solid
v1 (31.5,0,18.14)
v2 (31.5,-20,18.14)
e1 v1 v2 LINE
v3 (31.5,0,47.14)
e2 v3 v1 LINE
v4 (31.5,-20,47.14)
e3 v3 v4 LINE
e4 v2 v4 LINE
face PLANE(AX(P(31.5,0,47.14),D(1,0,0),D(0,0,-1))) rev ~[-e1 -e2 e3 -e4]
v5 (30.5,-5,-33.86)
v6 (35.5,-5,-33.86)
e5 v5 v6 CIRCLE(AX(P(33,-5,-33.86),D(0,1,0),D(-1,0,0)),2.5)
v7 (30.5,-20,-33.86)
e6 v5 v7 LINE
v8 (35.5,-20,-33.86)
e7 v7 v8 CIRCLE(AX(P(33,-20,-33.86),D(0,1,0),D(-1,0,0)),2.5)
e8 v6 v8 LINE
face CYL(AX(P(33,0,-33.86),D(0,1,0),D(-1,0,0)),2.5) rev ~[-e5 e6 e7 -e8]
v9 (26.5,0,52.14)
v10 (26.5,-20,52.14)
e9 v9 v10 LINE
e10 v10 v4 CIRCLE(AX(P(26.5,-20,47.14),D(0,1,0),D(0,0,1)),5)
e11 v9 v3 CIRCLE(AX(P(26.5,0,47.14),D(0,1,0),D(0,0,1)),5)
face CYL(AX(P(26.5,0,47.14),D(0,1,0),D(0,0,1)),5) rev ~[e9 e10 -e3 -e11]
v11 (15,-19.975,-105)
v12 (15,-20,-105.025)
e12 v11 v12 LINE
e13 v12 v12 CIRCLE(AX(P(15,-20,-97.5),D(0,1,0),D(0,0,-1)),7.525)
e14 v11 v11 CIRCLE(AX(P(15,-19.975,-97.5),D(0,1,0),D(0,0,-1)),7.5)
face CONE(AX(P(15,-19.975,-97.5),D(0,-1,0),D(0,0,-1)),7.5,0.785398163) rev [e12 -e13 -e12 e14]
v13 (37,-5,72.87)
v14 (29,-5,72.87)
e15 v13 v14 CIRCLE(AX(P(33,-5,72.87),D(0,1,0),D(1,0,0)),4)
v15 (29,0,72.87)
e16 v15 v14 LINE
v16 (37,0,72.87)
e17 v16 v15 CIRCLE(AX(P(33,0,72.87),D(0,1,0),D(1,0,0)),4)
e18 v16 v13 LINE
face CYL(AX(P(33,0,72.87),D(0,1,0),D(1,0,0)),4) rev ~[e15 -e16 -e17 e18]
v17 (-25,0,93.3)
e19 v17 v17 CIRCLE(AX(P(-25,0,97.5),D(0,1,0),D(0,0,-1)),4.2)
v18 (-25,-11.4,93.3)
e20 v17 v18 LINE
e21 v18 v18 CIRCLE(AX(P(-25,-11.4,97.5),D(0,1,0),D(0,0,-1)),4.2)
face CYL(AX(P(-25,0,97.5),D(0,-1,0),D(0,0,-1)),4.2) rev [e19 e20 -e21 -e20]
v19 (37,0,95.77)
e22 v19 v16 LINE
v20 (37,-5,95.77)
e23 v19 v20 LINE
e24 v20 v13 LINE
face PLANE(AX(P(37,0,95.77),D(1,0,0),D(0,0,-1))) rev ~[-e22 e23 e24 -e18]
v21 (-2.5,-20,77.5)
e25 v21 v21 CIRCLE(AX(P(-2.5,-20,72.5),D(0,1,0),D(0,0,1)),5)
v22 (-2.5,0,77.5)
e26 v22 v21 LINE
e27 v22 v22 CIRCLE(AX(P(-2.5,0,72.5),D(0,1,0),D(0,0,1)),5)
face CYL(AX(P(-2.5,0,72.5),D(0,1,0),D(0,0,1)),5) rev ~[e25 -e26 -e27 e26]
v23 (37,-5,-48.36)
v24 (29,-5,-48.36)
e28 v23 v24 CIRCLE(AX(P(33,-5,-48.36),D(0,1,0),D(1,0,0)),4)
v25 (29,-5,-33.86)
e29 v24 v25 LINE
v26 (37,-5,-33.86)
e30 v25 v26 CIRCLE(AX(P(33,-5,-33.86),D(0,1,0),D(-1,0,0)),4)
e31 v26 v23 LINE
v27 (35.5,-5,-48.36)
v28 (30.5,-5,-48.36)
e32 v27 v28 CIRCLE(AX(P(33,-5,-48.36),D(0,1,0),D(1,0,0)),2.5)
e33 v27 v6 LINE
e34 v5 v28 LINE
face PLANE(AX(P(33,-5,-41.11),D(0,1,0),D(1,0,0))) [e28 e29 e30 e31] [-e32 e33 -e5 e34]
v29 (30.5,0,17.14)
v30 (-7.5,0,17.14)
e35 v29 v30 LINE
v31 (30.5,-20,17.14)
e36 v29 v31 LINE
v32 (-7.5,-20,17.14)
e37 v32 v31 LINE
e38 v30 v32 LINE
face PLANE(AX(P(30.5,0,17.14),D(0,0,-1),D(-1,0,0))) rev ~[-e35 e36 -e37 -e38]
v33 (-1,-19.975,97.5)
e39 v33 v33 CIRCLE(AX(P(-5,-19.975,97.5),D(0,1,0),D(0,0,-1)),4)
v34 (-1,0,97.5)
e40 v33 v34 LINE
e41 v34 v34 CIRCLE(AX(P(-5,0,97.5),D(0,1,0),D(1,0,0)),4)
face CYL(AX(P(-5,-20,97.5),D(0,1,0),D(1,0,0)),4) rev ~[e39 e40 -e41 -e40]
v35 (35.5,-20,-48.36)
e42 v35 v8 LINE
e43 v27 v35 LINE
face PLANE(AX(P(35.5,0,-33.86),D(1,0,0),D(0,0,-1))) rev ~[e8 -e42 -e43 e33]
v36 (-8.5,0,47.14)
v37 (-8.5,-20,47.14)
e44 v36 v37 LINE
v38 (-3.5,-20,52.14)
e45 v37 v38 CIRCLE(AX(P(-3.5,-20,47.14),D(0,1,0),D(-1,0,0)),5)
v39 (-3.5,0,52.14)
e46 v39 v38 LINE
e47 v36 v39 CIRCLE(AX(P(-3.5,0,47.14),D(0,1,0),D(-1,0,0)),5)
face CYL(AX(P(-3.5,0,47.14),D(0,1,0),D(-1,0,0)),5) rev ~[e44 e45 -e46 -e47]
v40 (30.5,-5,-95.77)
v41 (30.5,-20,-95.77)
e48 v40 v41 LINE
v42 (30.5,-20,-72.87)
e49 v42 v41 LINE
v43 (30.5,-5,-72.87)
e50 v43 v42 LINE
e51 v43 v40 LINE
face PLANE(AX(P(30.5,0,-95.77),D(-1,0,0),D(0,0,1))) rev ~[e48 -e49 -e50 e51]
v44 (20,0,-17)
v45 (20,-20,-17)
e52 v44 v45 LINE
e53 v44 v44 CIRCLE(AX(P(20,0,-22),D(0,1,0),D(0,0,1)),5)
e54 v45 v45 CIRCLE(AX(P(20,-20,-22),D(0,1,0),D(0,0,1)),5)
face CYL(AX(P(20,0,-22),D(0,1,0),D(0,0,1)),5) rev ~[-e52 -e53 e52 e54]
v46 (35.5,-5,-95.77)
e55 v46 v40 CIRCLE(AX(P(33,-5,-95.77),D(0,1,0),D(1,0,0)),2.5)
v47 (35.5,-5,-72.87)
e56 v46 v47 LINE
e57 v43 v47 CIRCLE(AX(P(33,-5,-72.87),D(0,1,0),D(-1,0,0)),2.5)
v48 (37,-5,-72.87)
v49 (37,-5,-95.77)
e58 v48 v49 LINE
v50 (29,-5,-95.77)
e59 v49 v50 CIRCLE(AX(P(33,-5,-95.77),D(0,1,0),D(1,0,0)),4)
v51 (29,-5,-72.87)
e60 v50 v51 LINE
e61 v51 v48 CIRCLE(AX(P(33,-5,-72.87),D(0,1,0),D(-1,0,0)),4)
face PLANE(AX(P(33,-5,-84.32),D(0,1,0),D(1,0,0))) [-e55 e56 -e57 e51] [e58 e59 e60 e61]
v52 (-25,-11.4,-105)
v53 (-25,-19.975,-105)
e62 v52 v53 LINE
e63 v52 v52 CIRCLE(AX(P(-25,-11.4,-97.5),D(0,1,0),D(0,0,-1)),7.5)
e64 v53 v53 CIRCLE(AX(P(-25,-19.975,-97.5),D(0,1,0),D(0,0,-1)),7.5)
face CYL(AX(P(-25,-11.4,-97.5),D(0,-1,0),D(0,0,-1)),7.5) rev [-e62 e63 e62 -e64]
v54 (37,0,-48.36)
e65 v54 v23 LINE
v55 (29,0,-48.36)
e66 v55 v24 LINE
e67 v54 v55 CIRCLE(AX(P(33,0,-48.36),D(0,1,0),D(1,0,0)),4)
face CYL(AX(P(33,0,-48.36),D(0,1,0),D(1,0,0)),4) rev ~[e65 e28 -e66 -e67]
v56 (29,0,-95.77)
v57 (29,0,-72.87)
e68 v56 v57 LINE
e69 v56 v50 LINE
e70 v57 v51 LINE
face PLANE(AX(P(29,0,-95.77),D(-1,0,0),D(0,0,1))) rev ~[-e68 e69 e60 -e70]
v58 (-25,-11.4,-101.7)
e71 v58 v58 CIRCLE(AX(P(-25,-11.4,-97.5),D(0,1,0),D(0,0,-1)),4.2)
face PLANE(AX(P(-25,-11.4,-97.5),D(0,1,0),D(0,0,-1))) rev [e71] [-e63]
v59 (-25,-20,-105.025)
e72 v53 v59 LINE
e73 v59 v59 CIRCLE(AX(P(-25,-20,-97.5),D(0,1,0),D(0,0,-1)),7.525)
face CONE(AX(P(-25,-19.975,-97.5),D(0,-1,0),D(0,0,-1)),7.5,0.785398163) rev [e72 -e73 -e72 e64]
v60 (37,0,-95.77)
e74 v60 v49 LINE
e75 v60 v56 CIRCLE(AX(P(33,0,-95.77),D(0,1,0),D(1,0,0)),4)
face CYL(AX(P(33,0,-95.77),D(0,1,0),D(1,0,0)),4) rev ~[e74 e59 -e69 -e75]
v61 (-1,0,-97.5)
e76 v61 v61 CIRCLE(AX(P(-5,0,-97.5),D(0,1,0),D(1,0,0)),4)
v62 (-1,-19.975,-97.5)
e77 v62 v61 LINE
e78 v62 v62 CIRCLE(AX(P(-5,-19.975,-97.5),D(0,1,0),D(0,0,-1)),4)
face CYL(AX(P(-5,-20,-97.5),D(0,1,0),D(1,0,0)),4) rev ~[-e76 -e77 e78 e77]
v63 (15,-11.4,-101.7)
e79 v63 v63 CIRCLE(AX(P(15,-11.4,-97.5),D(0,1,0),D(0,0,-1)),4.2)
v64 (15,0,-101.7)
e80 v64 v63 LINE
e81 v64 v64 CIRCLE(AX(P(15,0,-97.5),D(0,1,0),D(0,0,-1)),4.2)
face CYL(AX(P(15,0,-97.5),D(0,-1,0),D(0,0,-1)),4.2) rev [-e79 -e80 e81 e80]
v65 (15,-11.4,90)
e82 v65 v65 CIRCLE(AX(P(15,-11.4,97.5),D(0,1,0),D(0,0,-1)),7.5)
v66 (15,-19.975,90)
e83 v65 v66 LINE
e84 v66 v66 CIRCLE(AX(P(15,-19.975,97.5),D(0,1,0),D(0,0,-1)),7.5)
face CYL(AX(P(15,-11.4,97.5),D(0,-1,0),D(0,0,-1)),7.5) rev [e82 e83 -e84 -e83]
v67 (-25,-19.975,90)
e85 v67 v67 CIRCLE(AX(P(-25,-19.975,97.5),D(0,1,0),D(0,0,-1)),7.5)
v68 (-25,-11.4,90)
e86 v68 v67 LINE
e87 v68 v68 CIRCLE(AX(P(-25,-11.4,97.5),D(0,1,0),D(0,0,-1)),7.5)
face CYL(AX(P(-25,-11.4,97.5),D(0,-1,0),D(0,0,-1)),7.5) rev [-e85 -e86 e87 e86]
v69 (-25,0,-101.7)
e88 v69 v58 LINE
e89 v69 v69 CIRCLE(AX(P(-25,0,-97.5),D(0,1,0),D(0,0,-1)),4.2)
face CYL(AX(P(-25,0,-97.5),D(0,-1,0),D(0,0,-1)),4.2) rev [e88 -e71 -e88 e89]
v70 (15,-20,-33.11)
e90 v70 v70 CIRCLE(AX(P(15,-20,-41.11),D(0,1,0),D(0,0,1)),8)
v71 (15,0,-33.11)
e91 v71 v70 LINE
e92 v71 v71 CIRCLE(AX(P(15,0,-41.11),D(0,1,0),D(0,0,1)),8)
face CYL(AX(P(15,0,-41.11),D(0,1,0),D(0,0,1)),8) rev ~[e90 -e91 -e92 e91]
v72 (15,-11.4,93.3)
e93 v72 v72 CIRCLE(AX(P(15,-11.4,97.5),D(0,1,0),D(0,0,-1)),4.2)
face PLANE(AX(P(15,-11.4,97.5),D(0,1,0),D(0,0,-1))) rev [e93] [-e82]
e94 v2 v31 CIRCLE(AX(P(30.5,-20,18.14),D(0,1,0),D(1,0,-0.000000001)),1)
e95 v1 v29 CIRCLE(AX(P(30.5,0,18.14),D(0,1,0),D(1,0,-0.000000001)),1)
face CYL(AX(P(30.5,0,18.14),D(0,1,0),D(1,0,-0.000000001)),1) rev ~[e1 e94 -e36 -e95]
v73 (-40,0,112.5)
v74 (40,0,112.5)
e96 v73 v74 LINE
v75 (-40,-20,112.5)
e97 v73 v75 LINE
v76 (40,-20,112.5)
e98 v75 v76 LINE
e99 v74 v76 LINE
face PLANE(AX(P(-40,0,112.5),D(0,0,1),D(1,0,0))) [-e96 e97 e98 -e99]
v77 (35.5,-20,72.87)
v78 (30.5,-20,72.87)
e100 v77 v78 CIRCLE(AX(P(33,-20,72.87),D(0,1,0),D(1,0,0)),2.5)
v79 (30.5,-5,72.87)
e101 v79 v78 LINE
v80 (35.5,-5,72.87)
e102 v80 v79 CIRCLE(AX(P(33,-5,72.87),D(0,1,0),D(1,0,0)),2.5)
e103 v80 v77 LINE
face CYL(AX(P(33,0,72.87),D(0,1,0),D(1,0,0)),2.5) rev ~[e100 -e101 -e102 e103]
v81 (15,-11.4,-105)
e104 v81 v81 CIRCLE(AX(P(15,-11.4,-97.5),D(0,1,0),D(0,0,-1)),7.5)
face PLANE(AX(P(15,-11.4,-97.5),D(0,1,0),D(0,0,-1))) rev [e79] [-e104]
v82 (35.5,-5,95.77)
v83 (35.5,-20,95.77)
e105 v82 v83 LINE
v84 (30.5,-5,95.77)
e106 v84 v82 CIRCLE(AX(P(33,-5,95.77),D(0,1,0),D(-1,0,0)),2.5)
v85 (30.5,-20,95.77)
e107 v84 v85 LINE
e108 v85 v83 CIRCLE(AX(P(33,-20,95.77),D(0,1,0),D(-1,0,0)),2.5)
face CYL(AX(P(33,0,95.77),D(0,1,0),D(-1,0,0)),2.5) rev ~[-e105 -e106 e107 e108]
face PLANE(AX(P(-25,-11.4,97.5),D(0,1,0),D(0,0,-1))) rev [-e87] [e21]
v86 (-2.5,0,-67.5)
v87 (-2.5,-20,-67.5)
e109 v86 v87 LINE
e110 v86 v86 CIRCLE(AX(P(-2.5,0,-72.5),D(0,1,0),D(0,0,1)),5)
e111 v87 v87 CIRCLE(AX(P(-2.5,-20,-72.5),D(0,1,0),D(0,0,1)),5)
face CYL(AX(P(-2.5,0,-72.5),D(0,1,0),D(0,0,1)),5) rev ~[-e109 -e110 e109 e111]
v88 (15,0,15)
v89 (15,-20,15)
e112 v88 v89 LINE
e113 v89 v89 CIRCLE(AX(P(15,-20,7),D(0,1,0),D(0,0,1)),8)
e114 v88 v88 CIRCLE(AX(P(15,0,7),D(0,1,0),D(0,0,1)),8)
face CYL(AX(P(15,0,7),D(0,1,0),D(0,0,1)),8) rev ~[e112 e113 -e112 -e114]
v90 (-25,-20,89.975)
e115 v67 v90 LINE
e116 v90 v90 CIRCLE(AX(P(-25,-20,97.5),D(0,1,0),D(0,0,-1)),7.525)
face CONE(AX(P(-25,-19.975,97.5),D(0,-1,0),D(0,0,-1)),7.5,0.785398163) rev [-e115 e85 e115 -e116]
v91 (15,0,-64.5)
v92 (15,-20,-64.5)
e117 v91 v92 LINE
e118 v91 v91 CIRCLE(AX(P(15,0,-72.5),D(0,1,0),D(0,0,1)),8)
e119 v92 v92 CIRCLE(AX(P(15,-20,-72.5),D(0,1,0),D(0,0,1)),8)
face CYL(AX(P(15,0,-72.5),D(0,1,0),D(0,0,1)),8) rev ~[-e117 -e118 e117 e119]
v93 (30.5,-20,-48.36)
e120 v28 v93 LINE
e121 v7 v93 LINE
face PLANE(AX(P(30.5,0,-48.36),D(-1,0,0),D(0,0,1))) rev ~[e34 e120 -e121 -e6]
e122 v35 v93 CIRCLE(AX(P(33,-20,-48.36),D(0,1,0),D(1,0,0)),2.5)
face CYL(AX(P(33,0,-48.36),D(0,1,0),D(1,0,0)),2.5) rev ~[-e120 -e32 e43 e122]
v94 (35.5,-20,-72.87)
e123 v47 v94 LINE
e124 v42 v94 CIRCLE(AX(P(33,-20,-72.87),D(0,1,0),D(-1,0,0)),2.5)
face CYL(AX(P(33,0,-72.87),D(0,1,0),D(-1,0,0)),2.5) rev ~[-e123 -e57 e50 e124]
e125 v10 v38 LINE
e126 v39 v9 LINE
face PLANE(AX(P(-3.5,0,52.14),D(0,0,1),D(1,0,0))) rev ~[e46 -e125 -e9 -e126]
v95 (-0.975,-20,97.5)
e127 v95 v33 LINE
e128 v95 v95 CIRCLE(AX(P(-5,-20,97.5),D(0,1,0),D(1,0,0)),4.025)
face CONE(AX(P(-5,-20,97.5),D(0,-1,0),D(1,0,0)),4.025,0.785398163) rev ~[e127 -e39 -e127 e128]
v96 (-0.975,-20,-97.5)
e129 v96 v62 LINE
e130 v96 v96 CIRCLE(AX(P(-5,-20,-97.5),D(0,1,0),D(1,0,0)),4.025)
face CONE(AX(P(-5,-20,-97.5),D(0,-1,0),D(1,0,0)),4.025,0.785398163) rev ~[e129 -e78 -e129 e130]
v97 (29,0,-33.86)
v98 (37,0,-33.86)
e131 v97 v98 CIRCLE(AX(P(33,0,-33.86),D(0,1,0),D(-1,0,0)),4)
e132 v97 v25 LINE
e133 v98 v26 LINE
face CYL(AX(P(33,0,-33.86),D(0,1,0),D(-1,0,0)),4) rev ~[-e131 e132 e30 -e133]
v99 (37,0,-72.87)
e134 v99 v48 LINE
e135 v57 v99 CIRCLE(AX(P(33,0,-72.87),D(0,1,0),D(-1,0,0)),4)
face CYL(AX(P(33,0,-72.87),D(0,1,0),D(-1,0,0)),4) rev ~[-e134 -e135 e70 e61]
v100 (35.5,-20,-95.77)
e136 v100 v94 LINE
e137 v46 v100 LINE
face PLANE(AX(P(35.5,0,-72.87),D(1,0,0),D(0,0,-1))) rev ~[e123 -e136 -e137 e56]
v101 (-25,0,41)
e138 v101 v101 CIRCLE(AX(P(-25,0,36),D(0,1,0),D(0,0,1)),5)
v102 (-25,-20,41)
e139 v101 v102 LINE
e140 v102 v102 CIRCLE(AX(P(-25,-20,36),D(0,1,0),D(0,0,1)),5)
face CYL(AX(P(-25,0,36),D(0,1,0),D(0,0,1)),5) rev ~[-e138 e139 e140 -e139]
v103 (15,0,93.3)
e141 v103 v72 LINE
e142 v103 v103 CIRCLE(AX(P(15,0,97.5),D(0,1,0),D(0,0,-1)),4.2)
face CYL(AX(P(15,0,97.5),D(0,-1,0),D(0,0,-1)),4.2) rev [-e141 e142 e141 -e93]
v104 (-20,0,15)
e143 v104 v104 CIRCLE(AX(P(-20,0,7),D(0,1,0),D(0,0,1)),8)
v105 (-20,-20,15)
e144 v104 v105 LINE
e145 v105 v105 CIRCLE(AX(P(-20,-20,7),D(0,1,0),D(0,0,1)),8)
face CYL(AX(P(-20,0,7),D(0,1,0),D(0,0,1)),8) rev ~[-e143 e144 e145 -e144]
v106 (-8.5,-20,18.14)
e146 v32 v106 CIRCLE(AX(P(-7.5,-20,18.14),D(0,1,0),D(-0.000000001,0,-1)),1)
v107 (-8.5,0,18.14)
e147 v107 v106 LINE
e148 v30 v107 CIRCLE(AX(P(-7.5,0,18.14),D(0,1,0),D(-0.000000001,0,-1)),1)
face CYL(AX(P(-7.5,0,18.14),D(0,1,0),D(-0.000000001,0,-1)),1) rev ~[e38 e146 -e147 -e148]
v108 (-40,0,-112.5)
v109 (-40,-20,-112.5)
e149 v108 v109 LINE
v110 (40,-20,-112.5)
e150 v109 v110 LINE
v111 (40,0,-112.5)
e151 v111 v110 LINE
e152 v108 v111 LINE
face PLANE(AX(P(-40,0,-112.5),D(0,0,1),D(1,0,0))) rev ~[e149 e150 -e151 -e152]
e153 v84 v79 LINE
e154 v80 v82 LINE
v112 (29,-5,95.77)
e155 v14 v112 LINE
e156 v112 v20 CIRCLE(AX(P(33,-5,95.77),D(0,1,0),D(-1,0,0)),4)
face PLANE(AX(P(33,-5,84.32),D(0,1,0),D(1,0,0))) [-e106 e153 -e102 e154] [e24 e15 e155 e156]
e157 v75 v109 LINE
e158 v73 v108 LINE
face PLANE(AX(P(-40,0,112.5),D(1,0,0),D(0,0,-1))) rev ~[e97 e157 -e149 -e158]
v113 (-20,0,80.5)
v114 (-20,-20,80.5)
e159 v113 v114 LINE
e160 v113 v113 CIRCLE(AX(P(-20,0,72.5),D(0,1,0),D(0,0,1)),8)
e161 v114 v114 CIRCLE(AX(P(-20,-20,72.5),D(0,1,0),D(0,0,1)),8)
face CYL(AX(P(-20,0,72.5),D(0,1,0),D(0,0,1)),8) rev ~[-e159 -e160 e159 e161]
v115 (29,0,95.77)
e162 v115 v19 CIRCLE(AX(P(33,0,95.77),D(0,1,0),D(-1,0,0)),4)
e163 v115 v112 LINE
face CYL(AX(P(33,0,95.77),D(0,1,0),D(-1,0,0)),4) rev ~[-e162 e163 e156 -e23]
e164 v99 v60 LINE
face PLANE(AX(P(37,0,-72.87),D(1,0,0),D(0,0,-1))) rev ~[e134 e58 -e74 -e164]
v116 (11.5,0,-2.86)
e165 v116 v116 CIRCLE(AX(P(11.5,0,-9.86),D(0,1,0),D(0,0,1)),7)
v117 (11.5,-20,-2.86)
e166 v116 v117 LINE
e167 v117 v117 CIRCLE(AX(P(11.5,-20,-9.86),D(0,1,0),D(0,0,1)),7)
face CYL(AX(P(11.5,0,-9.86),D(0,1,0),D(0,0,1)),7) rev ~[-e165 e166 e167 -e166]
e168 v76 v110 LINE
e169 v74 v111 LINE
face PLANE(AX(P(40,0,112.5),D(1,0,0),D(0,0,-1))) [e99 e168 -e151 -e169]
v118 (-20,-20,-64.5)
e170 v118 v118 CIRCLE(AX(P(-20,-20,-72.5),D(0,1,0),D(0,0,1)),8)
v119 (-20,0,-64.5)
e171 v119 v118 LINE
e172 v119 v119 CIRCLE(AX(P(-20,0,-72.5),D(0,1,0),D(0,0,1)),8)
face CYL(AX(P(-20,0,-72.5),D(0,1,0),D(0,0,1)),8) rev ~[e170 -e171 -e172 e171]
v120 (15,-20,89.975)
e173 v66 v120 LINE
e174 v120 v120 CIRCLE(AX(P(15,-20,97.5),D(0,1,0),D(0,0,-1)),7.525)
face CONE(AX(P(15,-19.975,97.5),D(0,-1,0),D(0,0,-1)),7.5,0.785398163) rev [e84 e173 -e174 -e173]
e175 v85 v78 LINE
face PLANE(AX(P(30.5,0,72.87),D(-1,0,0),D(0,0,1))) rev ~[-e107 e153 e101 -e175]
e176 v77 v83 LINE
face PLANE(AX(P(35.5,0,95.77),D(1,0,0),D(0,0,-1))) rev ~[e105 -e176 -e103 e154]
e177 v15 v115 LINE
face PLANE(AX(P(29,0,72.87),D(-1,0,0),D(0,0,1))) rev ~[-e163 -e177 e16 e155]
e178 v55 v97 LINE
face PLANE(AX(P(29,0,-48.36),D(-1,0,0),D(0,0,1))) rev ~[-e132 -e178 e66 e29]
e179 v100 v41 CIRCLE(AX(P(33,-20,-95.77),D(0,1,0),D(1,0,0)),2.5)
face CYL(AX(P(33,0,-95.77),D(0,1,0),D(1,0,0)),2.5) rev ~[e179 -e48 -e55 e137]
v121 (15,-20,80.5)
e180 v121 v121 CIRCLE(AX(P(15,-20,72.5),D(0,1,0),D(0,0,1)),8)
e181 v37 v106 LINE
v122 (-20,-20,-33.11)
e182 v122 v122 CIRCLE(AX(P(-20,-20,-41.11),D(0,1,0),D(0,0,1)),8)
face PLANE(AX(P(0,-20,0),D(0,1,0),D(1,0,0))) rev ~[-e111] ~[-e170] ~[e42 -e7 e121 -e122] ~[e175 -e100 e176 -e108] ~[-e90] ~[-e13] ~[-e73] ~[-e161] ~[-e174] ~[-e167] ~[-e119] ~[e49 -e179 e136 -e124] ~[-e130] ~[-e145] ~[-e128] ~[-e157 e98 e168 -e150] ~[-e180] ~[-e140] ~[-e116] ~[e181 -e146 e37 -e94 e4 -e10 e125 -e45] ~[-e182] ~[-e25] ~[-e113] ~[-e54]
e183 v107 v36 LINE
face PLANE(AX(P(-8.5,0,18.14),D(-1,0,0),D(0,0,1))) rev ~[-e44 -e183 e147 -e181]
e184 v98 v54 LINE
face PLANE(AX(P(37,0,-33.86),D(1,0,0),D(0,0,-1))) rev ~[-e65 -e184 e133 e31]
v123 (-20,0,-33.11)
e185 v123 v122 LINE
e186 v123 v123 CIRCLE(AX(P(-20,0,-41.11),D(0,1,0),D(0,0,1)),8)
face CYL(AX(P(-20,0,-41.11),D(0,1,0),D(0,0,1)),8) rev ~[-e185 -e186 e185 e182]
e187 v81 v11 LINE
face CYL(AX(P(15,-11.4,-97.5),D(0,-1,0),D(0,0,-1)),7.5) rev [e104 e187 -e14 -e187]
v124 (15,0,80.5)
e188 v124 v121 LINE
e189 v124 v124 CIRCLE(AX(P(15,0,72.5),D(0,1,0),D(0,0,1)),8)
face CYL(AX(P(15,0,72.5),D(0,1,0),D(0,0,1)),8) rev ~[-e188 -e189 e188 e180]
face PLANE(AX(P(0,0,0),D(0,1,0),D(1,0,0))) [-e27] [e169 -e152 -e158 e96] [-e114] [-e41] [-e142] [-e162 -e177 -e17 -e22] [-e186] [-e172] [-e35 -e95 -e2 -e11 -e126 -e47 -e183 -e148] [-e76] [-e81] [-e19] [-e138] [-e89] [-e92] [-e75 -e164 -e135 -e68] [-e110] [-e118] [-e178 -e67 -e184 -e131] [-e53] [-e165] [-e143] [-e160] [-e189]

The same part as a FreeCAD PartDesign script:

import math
import FreeCAD as App
import Part
import Sketcher

V = App.Vector
Q = App.Units.Quantity


def add_polygon(sketch, points):
    """Adds a closed chain of lines whose ends are joined by coincident constraints."""
    first, n = sketch.GeometryCount, len(points)
    for a, b in zip(points, points[1:] + points[:1]):
        sketch.addGeometry(Part.LineSegment(App.Vector(*a, 0), App.Vector(*b, 0)), False)
    for i in range(n):
        sketch.addConstraint(Sketcher.Constraint("Coincident", first + i, 2, first + (i + 1) % n, 1))

doc = App.newDocument("Part")
body = doc.addObject("PartDesign::Body", "Body")

# Sketch on XZ plane
sketch1 = body.newObject("Sketcher::SketchObject", "Sketch")
sketch1.AttachmentSupport = (doc.getObject("XZ_Plane"), [""])
sketch1.MapMode = "FlatFace"
add_polygon(sketch1, [(-40, -112), (-40, 112), (40, 112), (40, -112)])  # lines 0-3
sketch1.addConstraint([
    Sketcher.Constraint("Vertical", 0),
    Sketcher.Constraint("Horizontal", 1),
    Sketcher.Constraint("Vertical", 2),
    Sketcher.Constraint("Horizontal", 3),
    Sketcher.Constraint("Symmetric", 0, 2, 2, 2, -1, 1),
    Sketcher.Constraint("DistanceX", 1, 1, 1, 2, Q("80 mm")),
    Sketcher.Constraint("DistanceY", 0, 1, 0, 2, Q("225 mm")),
])
pad1 = body.newObject("PartDesign::Pad", "Pad")
pad1.Profile = sketch1
pad1.Length = 20

# Sketch on XZ plane
sketch2 = body.newObject("Sketcher::SketchObject", "Sketch001")
sketch2.AttachmentSupport = (doc.getObject("XZ_Plane"), [""])
sketch2.MapMode = "FlatFace"
sketch2.addGeometry([
    Part.LineSegment(V(31.5, 47.1, 0), V(31.5, 18.1, 0)),  # 0
    Part.ArcOfCircle(Part.Circle(V(30.5, 18.1, 0), V(0, 0, 1), 1), math.radians(-90), math.radians(0)),  # 1
    Part.LineSegment(V(30.5, 17.1, 0), V(-7.5, 17.1, 0)),  # 2
    Part.ArcOfCircle(Part.Circle(V(-7.5, 18.1, 0), V(0, 0, 1), 1), math.radians(-180), math.radians(-90)),  # 3
    Part.LineSegment(V(-8.5, 18.1, 0), V(-8.5, 47.1, 0)),  # 4
    Part.ArcOfCircle(Part.Circle(V(-3.5, 47.1, 0), V(0, 0, 1), 5), math.radians(90), math.radians(180)),  # 5
    Part.LineSegment(V(-3.5, 52.1, 0), V(26.5, 52.1, 0)),  # 6
    Part.ArcOfCircle(Part.Circle(V(26.5, 47.1, 0), V(0, 0, 1), 5), math.radians(0), math.radians(90)),  # 7
], False)
sketch2.addConstraint([
    Sketcher.Constraint("Tangent", 0, 2, 1, 2),
    Sketcher.Constraint("Tangent", 1, 1, 2, 1),
    Sketcher.Constraint("Tangent", 2, 2, 3, 2),
    Sketcher.Constraint("Tangent", 3, 1, 4, 1),
    Sketcher.Constraint("Tangent", 4, 2, 5, 2),
    Sketcher.Constraint("Tangent", 5, 1, 6, 1),
    Sketcher.Constraint("Tangent", 6, 2, 7, 2),
    Sketcher.Constraint("Tangent", 7, 1, 0, 1),
    Sketcher.Constraint("Vertical", 0),
    Sketcher.Constraint("Horizontal", 2),
    Sketcher.Constraint("Vertical", 4),
    Sketcher.Constraint("Horizontal", 6),
    Sketcher.Constraint("Equal", 1, 3),
    Sketcher.Constraint("Equal", 5, 7),
    Sketcher.Constraint("Radius", 1, Q("1 mm")),
    Sketcher.Constraint("Radius", 5, Q("5 mm")),
    Sketcher.Constraint("DistanceX", 2, 2, 2, 1, Q("38 mm")),
    Sketcher.Constraint("DistanceY", 0, 2, 0, 1, Q("29 mm")),
    Sketcher.Constraint("DistanceX", -1, 1, 1, 3, Q("30.5 mm")),
    Sketcher.Constraint("DistanceY", -1, 1, 1, 3, Q("18.14 mm")),
])
pocket1 = body.newObject("PartDesign::Pocket", "Pocket")
pocket1.Profile = sketch2
pocket1.Type = "UpToFirst"
pocket1.Reversed = True

# Sketch on XZ plane
sketch3 = body.newObject("Sketcher::SketchObject", "Sketch002")
sketch3.AttachmentSupport = (doc.getObject("XZ_Plane"), [""])
sketch3.MapMode = "FlatFace"
sketch3.addGeometry([
    Part.LineSegment(V(35.5, 95.8, 0), V(35.5, 72.9, 0)),
    Part.ArcOfCircle(Part.Circle(V(33, 72.9, 0), V(0, 0, 1), 2.5), math.radians(180), math.radians(360)),
    Part.LineSegment(V(30.5, 72.9, 0), V(30.5, 95.8, 0)),
    Part.ArcOfCircle(Part.Circle(V(33, 95.8, 0), V(0, 0, 1), 2.5), math.radians(0), math.radians(180)),
], False)
sketch3.addConstraint([
    Sketcher.Constraint("Tangent", 0, 2, 1, 2),
    Sketcher.Constraint("Tangent", 1, 1, 2, 1),
    Sketcher.Constraint("Tangent", 2, 2, 3, 2),
    Sketcher.Constraint("Tangent", 3, 1, 0, 1),
    Sketcher.Constraint("Vertical", 0),
    Sketcher.Constraint("Vertical", 2),
    Sketcher.Constraint("Radius", 1, Q("2.5 mm")),
    Sketcher.Constraint("DistanceY", 0, 2, 0, 1, Q("22.9 mm")),
    Sketcher.Constraint("DistanceX", -1, 1, 1, 3, Q("33 mm")),
    Sketcher.Constraint("DistanceY", -1, 1, 1, 3, Q("72.87 mm")),
])
pocket2 = body.newObject("PartDesign::Pocket", "Pocket001")
pocket2.Profile = sketch3
pocket2.Type = "UpToFirst"
pocket2.Reversed = True

# Sketch on XZ plane
sketch4 = body.newObject("Sketcher::SketchObject", "Sketch003")
sketch4.AttachmentSupport = (doc.getObject("XZ_Plane"), [""])
sketch4.MapMode = "FlatFace"
sketch4.addGeometry([
    Part.LineSegment(V(35.5, -33.9, 0), V(35.5, -48.4, 0)),
    Part.ArcOfCircle(Part.Circle(V(33, -48.4, 0), V(0, 0, 1), 2.5), math.radians(180), math.radians(360)),
    Part.LineSegment(V(30.5, -48.4, 0), V(30.5, -33.9, 0)),
    Part.ArcOfCircle(Part.Circle(V(33, -33.9, 0), V(0, 0, 1), 2.5), math.radians(0), math.radians(180)),
], False)
sketch4.addConstraint([
    Sketcher.Constraint("Tangent", 0, 2, 1, 2),
    Sketcher.Constraint("Tangent", 1, 1, 2, 1),
    Sketcher.Constraint("Tangent", 2, 2, 3, 2),
    Sketcher.Constraint("Tangent", 3, 1, 0, 1),
    Sketcher.Constraint("Vertical", 0),
    Sketcher.Constraint("Vertical", 2),
    Sketcher.Constraint("Radius", 1, Q("2.5 mm")),
    Sketcher.Constraint("DistanceY", 0, 2, 0, 1, Q("14.5 mm")),
    Sketcher.Constraint("DistanceX", -1, 1, 1, 3, Q("33 mm")),
    Sketcher.Constraint("DistanceY", 1, 3, -1, 1, Q("48.36 mm")),
])
pocket3 = body.newObject("PartDesign::Pocket", "Pocket002")
pocket3.Profile = sketch4
pocket3.Type = "UpToFirst"
pocket3.Reversed = True

# Sketch on XZ plane
sketch5 = body.newObject("Sketcher::SketchObject", "Sketch004")
sketch5.AttachmentSupport = (doc.getObject("XZ_Plane"), [""])
sketch5.MapMode = "FlatFace"
sketch5.addGeometry([
    Part.LineSegment(V(35.5, -72.9, 0), V(35.5, -95.8, 0)),
    Part.ArcOfCircle(Part.Circle(V(33, -95.8, 0), V(0, 0, 1), 2.5), math.radians(180), math.radians(360)),
    Part.LineSegment(V(30.5, -95.8, 0), V(30.5, -72.9, 0)),
    Part.ArcOfCircle(Part.Circle(V(33, -72.9, 0), V(0, 0, 1), 2.5), math.radians(0), math.radians(180)),
], False)
sketch5.addConstraint([
    Sketcher.Constraint("Tangent", 0, 2, 1, 2),
    Sketcher.Constraint("Tangent", 1, 1, 2, 1),
    Sketcher.Constraint("Tangent", 2, 2, 3, 2),
    Sketcher.Constraint("Tangent", 3, 1, 0, 1),
    Sketcher.Constraint("Vertical", 0),
    Sketcher.Constraint("Vertical", 2),
    Sketcher.Constraint("Radius", 1, Q("2.5 mm")),
    Sketcher.Constraint("DistanceY", 0, 2, 0, 1, Q("22.9 mm")),
    Sketcher.Constraint("DistanceX", -1, 1, 1, 3, Q("33 mm")),
    Sketcher.Constraint("DistanceY", 1, 3, -1, 1, Q("95.77 mm")),
])
pocket4 = body.newObject("PartDesign::Pocket", "Pocket003")
pocket4.Profile = sketch5
pocket4.Type = "UpToFirst"
pocket4.Reversed = True

# Sketch on XZ plane
sketch6 = body.newObject("Sketcher::SketchObject", "Sketch005")
sketch6.AttachmentSupport = (doc.getObject("XZ_Plane"), [""])
sketch6.MapMode = "FlatFace"
sketch6.addGeometry([
    Part.LineSegment(V(37, -72.9, 0), V(37, -95.8, 0)),  # 0
    Part.ArcOfCircle(Part.Circle(V(33, -95.8, 0), V(0, 0, 1), 4), math.radians(180), math.radians(360)),  # 1
    Part.LineSegment(V(29, -95.8, 0), V(29, -72.9, 0)),  # 2
    Part.ArcOfCircle(Part.Circle(V(33, -72.9, 0), V(0, 0, 1), 4), math.radians(0), math.radians(180)),  # 3
    Part.LineSegment(V(37, -33.9, 0), V(37, -48.4, 0)),  # 4
    Part.ArcOfCircle(Part.Circle(V(33, -48.4, 0), V(0, 0, 1), 4), math.radians(180), math.radians(360)),  # 5
    Part.LineSegment(V(29, -48.4, 0), V(29, -33.9, 0)),  # 6
    Part.ArcOfCircle(Part.Circle(V(33, -33.9, 0), V(0, 0, 1), 4), math.radians(0), math.radians(180)),  # 7
    Part.LineSegment(V(37, 95.8, 0), V(37, 72.9, 0)),  # 8
    Part.ArcOfCircle(Part.Circle(V(33, 72.9, 0), V(0, 0, 1), 4), math.radians(180), math.radians(360)),  # 9
    Part.LineSegment(V(29, 72.9, 0), V(29, 95.8, 0)),  # 10
    Part.ArcOfCircle(Part.Circle(V(33, 95.8, 0), V(0, 0, 1), 4), math.radians(0), math.radians(180)),  # 11
], False)
sketch6.addConstraint([
    Sketcher.Constraint("Tangent", 0, 2, 1, 2),
    Sketcher.Constraint("Tangent", 1, 1, 2, 1),
    Sketcher.Constraint("Tangent", 2, 2, 3, 2),
    Sketcher.Constraint("Tangent", 3, 1, 0, 1),
    Sketcher.Constraint("Tangent", 4, 2, 5, 2),
    Sketcher.Constraint("Tangent", 5, 1, 6, 1),
    Sketcher.Constraint("Tangent", 6, 2, 7, 2),
    Sketcher.Constraint("Tangent", 7, 1, 4, 1),
    Sketcher.Constraint("Tangent", 8, 2, 9, 2),
    Sketcher.Constraint("Tangent", 9, 1, 10, 1),
    Sketcher.Constraint("Tangent", 10, 2, 11, 2),
    Sketcher.Constraint("Tangent", 11, 1, 8, 1),
    Sketcher.Constraint("Vertical", 0),
    Sketcher.Constraint("Vertical", 2),
    Sketcher.Constraint("Vertical", 4),
    Sketcher.Constraint("Vertical", 6),
    Sketcher.Constraint("Vertical", 8),
    Sketcher.Constraint("Vertical", 10),
    Sketcher.Constraint("Equal", 3, 5),
    Sketcher.Constraint("Equal", 7, 9),
    Sketcher.Constraint("Symmetric", 3, 3, 9, 3, -1),
    Sketcher.Constraint("Vertical", 3, 3, 5, 3),
    Sketcher.Constraint("Equal", 2, 8),
    Sketcher.Constraint("Radius", 1, Q("4 mm")),
    Sketcher.Constraint("DistanceY", 0, 2, 0, 1, Q("22.9 mm")),
    Sketcher.Constraint("DistanceY", 4, 2, 4, 1, Q("14.5 mm")),
    Sketcher.Constraint("DistanceX", -1, 1, 1, 3, Q("33 mm")),
    Sketcher.Constraint("DistanceY", 1, 3, -1, 1, Q("95.77 mm")),
    Sketcher.Constraint("DistanceY", 5, 3, -1, 1, Q("48.36 mm")),
])
pocket5 = body.newObject("PartDesign::Pocket", "Pocket004")
pocket5.Profile = sketch6
pocket5.Length = 5
pocket5.Reversed = True

# Sketch on YZ plane
sketch7 = body.newObject("Sketcher::SketchObject", "Sketch006")
sketch7.AttachmentSupport = (doc.getObject("YZ_Plane"), [""])
sketch7.MapMode = "FlatFace"
sketch7.AttachmentOffset = App.Placement(V(0, 0, -25), App.Rotation())
add_polygon(sketch7, [(0, -97.5), (-20, -97.5), (-20, -105.025), (-19.975, -105), (-11.4, -105), (-11.4, -101.7), (0, -101.7)])  # lines 0-6
sketch7.addGeometry(Part.LineSegment(V(-20, -97.5, 0), V(0, -97.5, 0)), True)  # axis
sketch7.addConstraint([
    Sketcher.Constraint("Horizontal", 0),
    Sketcher.Constraint("Vertical", 1),
    Sketcher.Constraint("Horizontal", 3),
    Sketcher.Constraint("Vertical", 4),
    Sketcher.Constraint("Horizontal", 5),
    Sketcher.Constraint("Vertical", 6),
    Sketcher.Constraint("Horizontal", 7),
    Sketcher.Constraint("Coincident", 7, 1, 0, 2),
    Sketcher.Constraint("PointOnObject", 5, 2, -2),
    Sketcher.Constraint("PointOnObject", 7, 2, -2),
    Sketcher.Constraint("DistanceX", 0, 2, 0, 1, Q("20 mm")),
    Sketcher.Constraint("Angle", 2, Q("45 deg")),
    Sketcher.Constraint("DistanceX", 5, 1, 5, 2, Q("11.4 mm")),
    Sketcher.Constraint("DistanceY", 4, 1, 4, 2, Q("3.3 mm")),
    Sketcher.Constraint("DistanceY", 6, 1, 6, 2, Q("4.2 mm")),
    Sketcher.Constraint("DistanceY", 2, 2, -1, 1, Q("105 mm")),
    Sketcher.Constraint("DistanceX", 3, 1, 3, 2, Q("8.575 mm")),
])
groove = body.newObject("PartDesign::Groove", "Groove")
groove.Profile = sketch7
groove.ReferenceAxis = (sketch7, ["Axis0"])
groove.Angle = 360
doc.recompute()

linearpattern = body.newObject("PartDesign::LinearPattern", "LinearPattern")
linearpattern.Originals = [groove]
linearpattern.Direction = (doc.getObject("X_Axis"), [""])
linearpattern.Mode = "offset"
linearpattern.Offset = 40
linearpattern.Occurrences = 2
body.Tip = linearpattern
doc.recompute()

datumline = body.newObject("PartDesign::Line", "DatumLine")
datumline.Placement = App.Placement(V(0, 0, 0), App.Rotation(V(0, 0, 1), V(0.200944144, 0, 0.979602701)))
linearpattern2 = body.newObject("PartDesign::LinearPattern", "LinearPattern001")
linearpattern2.Originals = [groove]
linearpattern2.Direction = (datumline, [""])
linearpattern2.Mode = "offset"
linearpattern2.Offset = 199.060292
linearpattern2.Occurrences = 2
body.Tip = linearpattern2
doc.recompute()

linearpattern3 = body.newObject("PartDesign::LinearPattern", "LinearPattern002")
linearpattern3.Originals = [groove]
linearpattern3.Direction = (doc.getObject("Z_Axis"), [""])
linearpattern3.Mode = "offset"
linearpattern3.Offset = 195
linearpattern3.Occurrences = 2
body.Tip = linearpattern3

# Sketch on XZ plane
sketch8 = body.newObject("Sketcher::SketchObject", "Sketch007")
sketch8.AttachmentSupport = (doc.getObject("XZ_Plane"), [""])
sketch8.MapMode = "FlatFace"
sketch8.AttachmentOffset = App.Placement(V(0, 0, 20), App.Rotation())
sketch8.addGeometry([
    Part.Circle(V(-5, 97.5, 0), V(0, 0, 1), 4),
    Part.Circle(V(-5, -97.5, 0), V(0, 0, 1), 4),
], False)
sketch8.addConstraint([
    Sketcher.Constraint("Equal", 0, 1),
    Sketcher.Constraint("Symmetric", 0, 3, 1, 3, -1),
    Sketcher.Constraint("Diameter", 0, Q("8 mm")),
    Sketcher.Constraint("DistanceX", 0, 3, -1, 1, Q("5 mm")),
    Sketcher.Constraint("DistanceY", 1, 3, 0, 3, Q("195 mm")),
])
doc.recompute()
hole = body.newObject("PartDesign::Hole", "Hole")
hole.Profile = sketch8
hole.ThreadType = "None"
hole.Diameter = 8
hole.DepthType = "ThroughAll"
hole.HoleCutType = "Countersink"
hole.HoleCutDiameter = 8.05
hole.HoleCutCountersinkAngle = 90

# Sketch on XZ plane
sketch9 = body.newObject("Sketcher::SketchObject", "Sketch008")
sketch9.AttachmentSupport = (doc.getObject("XZ_Plane"), [""])
sketch9.MapMode = "FlatFace"
sketch9.addGeometry(Part.Circle(V(15, -41, 0), V(0, 0, 1), 8), False)
sketch9.addConstraint([
    Sketcher.Constraint("Diameter", 0, Q("16 mm")),
    Sketcher.Constraint("DistanceX", -1, 1, 0, 3, Q("15 mm")),
    Sketcher.Constraint("DistanceY", 0, 3, -1, 1, Q("41.11 mm")),
])
pocket6 = body.newObject("PartDesign::Pocket", "Pocket005")
pocket6.Profile = sketch9
pocket6.Type = "UpToFirst"
pocket6.Reversed = True

# Sketch on XZ plane
sketch10 = body.newObject("Sketcher::SketchObject", "Sketch009")
sketch10.AttachmentSupport = (doc.getObject("XZ_Plane"), [""])
sketch10.MapMode = "FlatFace"
sketch10.addGeometry(Part.Circle(V(15, 7, 0), V(0, 0, 1), 8), False)
sketch10.addConstraint([
    Sketcher.Constraint("Diameter", 0, Q("16 mm")),
    Sketcher.Constraint("DistanceX", -1, 1, 0, 3, Q("15 mm")),
    Sketcher.Constraint("DistanceY", -1, 1, 0, 3, Q("7 mm")),
])
pocket7 = body.newObject("PartDesign::Pocket", "Pocket006")
pocket7.Profile = sketch10
pocket7.Type = "UpToFirst"
pocket7.Reversed = True

# Sketch on XZ plane
sketch11 = body.newObject("Sketcher::SketchObject", "Sketch010")
sketch11.AttachmentSupport = (doc.getObject("XZ_Plane"), [""])
sketch11.MapMode = "FlatFace"
sketch11.addGeometry(Part.Circle(V(15, 72, 0), V(0, 0, 1), 8), False)
sketch11.addConstraint([
    Sketcher.Constraint("Diameter", 0, Q("16 mm")),
    Sketcher.Constraint("DistanceX", -1, 1, 0, 3, Q("15 mm")),
    Sketcher.Constraint("DistanceY", -1, 1, 0, 3, Q("72.5 mm")),
])
pocket8 = body.newObject("PartDesign::Pocket", "Pocket007")
pocket8.Profile = sketch11
pocket8.Type = "UpToFirst"
pocket8.Reversed = True

# Sketch on XZ plane
sketch12 = body.newObject("Sketcher::SketchObject", "Sketch011")
sketch12.AttachmentSupport = (doc.getObject("XZ_Plane"), [""])
sketch12.MapMode = "FlatFace"
sketch12.addGeometry(Part.Circle(V(-20, 72, 0), V(0, 0, 1), 8), False)
sketch12.addConstraint([
    Sketcher.Constraint("Diameter", 0, Q("16 mm")),
    Sketcher.Constraint("DistanceX", 0, 3, -1, 1, Q("20 mm")),
    Sketcher.Constraint("DistanceY", -1, 1, 0, 3, Q("72.5 mm")),
])
pocket9 = body.newObject("PartDesign::Pocket", "Pocket008")
pocket9.Profile = sketch12
pocket9.Type = "UpToFirst"
pocket9.Reversed = True

# Sketch on XZ plane
sketch13 = body.newObject("Sketcher::SketchObject", "Sketch012")
sketch13.AttachmentSupport = (doc.getObject("XZ_Plane"), [""])
sketch13.MapMode = "FlatFace"
sketch13.addGeometry(Part.Circle(V(-20, 7, 0), V(0, 0, 1), 8), False)
sketch13.addConstraint([
    Sketcher.Constraint("Diameter", 0, Q("16 mm")),
    Sketcher.Constraint("DistanceX", 0, 3, -1, 1, Q("20 mm")),
    Sketcher.Constraint("DistanceY", -1, 1, 0, 3, Q("7 mm")),
])
pocket10 = body.newObject("PartDesign::Pocket", "Pocket009")
pocket10.Profile = sketch13
pocket10.Type = "UpToFirst"
pocket10.Reversed = True

# Sketch on XZ plane
sketch14 = body.newObject("Sketcher::SketchObject", "Sketch013")
sketch14.AttachmentSupport = (doc.getObject("XZ_Plane"), [""])
sketch14.MapMode = "FlatFace"
sketch14.addGeometry(Part.Circle(V(-20, -41, 0), V(0, 0, 1), 8), False)
sketch14.addConstraint([
    Sketcher.Constraint("Diameter", 0, Q("16 mm")),
    Sketcher.Constraint("DistanceX", 0, 3, -1, 1, Q("20 mm")),
    Sketcher.Constraint("DistanceY", 0, 3, -1, 1, Q("41.11 mm")),
])
pocket11 = body.newObject("PartDesign::Pocket", "Pocket010")
pocket11.Profile = sketch14
pocket11.Type = "UpToFirst"
pocket11.Reversed = True

# Sketch on XZ plane
sketch15 = body.newObject("Sketcher::SketchObject", "Sketch014")
sketch15.AttachmentSupport = (doc.getObject("XZ_Plane"), [""])
sketch15.MapMode = "FlatFace"
sketch15.addGeometry(Part.Circle(V(-20, -72, 0), V(0, 0, 1), 8), False)
sketch15.addConstraint([
    Sketcher.Constraint("Diameter", 0, Q("16 mm")),
    Sketcher.Constraint("DistanceX", 0, 3, -1, 1, Q("20 mm")),
    Sketcher.Constraint("DistanceY", 0, 3, -1, 1, Q("72.5 mm")),
])
pocket12 = body.newObject("PartDesign::Pocket", "Pocket011")
pocket12.Profile = sketch15
pocket12.Type = "UpToFirst"
pocket12.Reversed = True

# Sketch on XZ plane
sketch16 = body.newObject("Sketcher::SketchObject", "Sketch015")
sketch16.AttachmentSupport = (doc.getObject("XZ_Plane"), [""])
sketch16.MapMode = "FlatFace"
sketch16.addGeometry(Part.Circle(V(15, -72, 0), V(0, 0, 1), 8), False)
sketch16.addConstraint([
    Sketcher.Constraint("Diameter", 0, Q("16 mm")),
    Sketcher.Constraint("DistanceX", -1, 1, 0, 3, Q("15 mm")),
    Sketcher.Constraint("DistanceY", 0, 3, -1, 1, Q("72.5 mm")),
])
pocket13 = body.newObject("PartDesign::Pocket", "Pocket012")
pocket13.Profile = sketch16
pocket13.Type = "UpToFirst"
pocket13.Reversed = True

# Sketch on XZ plane
sketch17 = body.newObject("Sketcher::SketchObject", "Sketch016")
sketch17.AttachmentSupport = (doc.getObject("XZ_Plane"), [""])
sketch17.MapMode = "FlatFace"
sketch17.addGeometry(Part.Circle(V(-2, 72, 0), V(0, 0, 1), 5), False)
sketch17.addConstraint([
    Sketcher.Constraint("Diameter", 0, Q("10 mm")),
    Sketcher.Constraint("DistanceX", 0, 3, -1, 1, Q("2.5 mm")),
    Sketcher.Constraint("DistanceY", -1, 1, 0, 3, Q("72.5 mm")),
])
pocket14 = body.newObject("PartDesign::Pocket", "Pocket013")
pocket14.Profile = sketch17
pocket14.Type = "UpToFirst"
pocket14.Reversed = True

# Sketch on XZ plane
sketch18 = body.newObject("Sketcher::SketchObject", "Sketch017")
sketch18.AttachmentSupport = (doc.getObject("XZ_Plane"), [""])
sketch18.MapMode = "FlatFace"
sketch18.addGeometry(Part.Circle(V(-25, 36, 0), V(0, 0, 1), 5), False)
sketch18.addConstraint([
    Sketcher.Constraint("Diameter", 0, Q("10 mm")),
    Sketcher.Constraint("DistanceX", 0, 3, -1, 1, Q("25 mm")),
    Sketcher.Constraint("DistanceY", -1, 1, 0, 3, Q("36 mm")),
])
pocket15 = body.newObject("PartDesign::Pocket", "Pocket014")
pocket15.Profile = sketch18
pocket15.Type = "UpToFirst"
pocket15.Reversed = True

# Sketch on XZ plane
sketch19 = body.newObject("Sketcher::SketchObject", "Sketch018")
sketch19.AttachmentSupport = (doc.getObject("XZ_Plane"), [""])
sketch19.MapMode = "FlatFace"
sketch19.addGeometry(Part.Circle(V(20, -22, 0), V(0, 0, 1), 5), False)
sketch19.addConstraint([
    Sketcher.Constraint("Diameter", 0, Q("10 mm")),
    Sketcher.Constraint("DistanceX", -1, 1, 0, 3, Q("20 mm")),
    Sketcher.Constraint("DistanceY", 0, 3, -1, 1, Q("22 mm")),
])
pocket16 = body.newObject("PartDesign::Pocket", "Pocket015")
pocket16.Profile = sketch19
pocket16.Type = "UpToFirst"
pocket16.Reversed = True

# Sketch on XZ plane
sketch20 = body.newObject("Sketcher::SketchObject", "Sketch019")
sketch20.AttachmentSupport = (doc.getObject("XZ_Plane"), [""])
sketch20.MapMode = "FlatFace"
sketch20.addGeometry(Part.Circle(V(-2, -72, 0), V(0, 0, 1), 5), False)
sketch20.addConstraint([
    Sketcher.Constraint("Diameter", 0, Q("10 mm")),
    Sketcher.Constraint("DistanceX", 0, 3, -1, 1, Q("2.5 mm")),
    Sketcher.Constraint("DistanceY", 0, 3, -1, 1, Q("72.5 mm")),
])
pocket17 = body.newObject("PartDesign::Pocket", "Pocket016")
pocket17.Profile = sketch20
pocket17.Type = "UpToFirst"
pocket17.Reversed = True

# Sketch on XZ plane
sketch21 = body.newObject("Sketcher::SketchObject", "Sketch020")
sketch21.AttachmentSupport = (doc.getObject("XZ_Plane"), [""])
sketch21.MapMode = "FlatFace"
sketch21.addGeometry(Part.Circle(V(12, -10, 0), V(0, 0, 1), 7), False)
sketch21.addConstraint([
    Sketcher.Constraint("Diameter", 0, Q("14 mm")),
    Sketcher.Constraint("DistanceX", -1, 1, 0, 3, Q("11.5 mm")),
    Sketcher.Constraint("DistanceY", 0, 3, -1, 1, Q("9.86 mm")),
])
pocket18 = body.newObject("PartDesign::Pocket", "Pocket017")
pocket18.Profile = sketch21
pocket18.Type = "UpToFirst"
pocket18.Reversed = True

doc.recompute()
